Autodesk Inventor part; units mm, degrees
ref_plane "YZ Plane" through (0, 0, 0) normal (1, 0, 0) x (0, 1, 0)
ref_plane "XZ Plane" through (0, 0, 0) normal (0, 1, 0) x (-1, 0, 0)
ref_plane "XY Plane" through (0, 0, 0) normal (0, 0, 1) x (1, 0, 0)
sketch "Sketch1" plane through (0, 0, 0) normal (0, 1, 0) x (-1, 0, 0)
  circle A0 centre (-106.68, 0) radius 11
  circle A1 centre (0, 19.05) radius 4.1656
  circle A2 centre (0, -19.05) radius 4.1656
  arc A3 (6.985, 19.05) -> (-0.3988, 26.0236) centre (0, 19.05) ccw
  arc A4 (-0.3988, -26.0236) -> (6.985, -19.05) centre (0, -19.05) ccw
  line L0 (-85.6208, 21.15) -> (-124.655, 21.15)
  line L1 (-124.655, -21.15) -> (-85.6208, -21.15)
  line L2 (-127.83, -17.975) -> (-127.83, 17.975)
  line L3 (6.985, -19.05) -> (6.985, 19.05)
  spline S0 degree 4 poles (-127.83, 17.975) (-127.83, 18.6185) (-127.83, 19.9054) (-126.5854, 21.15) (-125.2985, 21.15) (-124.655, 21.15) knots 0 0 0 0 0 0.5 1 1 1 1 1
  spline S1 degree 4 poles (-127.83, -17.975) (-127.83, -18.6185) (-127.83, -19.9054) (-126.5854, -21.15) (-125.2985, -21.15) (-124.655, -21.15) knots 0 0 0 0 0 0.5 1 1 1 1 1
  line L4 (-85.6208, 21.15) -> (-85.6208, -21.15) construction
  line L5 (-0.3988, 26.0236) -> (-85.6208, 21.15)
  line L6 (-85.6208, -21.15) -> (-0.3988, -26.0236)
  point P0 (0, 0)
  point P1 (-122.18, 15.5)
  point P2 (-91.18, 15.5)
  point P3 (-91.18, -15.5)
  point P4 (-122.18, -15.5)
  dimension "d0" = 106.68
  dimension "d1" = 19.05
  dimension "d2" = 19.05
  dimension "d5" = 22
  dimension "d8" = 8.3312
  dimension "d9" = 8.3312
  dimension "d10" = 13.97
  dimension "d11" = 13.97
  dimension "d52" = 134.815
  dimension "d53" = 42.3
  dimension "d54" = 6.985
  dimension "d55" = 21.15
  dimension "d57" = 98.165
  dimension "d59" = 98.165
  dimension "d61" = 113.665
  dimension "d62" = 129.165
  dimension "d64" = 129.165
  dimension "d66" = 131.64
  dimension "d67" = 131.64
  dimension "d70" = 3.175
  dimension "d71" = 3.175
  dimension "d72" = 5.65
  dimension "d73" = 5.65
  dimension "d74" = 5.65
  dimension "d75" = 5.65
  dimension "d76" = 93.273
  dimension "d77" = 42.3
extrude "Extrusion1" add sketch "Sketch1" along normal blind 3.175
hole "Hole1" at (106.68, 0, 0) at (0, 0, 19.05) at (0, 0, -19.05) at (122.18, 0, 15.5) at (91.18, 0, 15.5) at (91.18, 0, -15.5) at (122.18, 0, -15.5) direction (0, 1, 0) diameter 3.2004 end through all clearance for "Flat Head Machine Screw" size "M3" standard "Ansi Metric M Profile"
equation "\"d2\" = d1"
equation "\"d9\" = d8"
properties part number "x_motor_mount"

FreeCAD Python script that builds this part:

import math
import FreeCAD as App
import Part
import Sketcher
from FreeCAD import Vector
Q = App.Units.Quantity

doc = App.newDocument("Part")
body = doc.addObject("PartDesign::Body", "Body")

sketch1 = doc.addObject("Sketcher::SketchObject", "Sketch")
body.addObject(sketch1)
sketch1.AttachmentSupport = (doc.XZ_Plane, [""])
sketch1.MapMode = "FlatFace"
sketch1.addGeometry(Part.LineSegment(Vector(-6.985, -19.05, 0), Vector(-6.985, 19.05, 0)), False)
sketch1.addGeometry(Part.ArcOfCircle(Part.Circle(Vector(0, 19.05, 0), Vector(0, 0, 1), 6.985), math.radians(86.726985), math.radians(180)), False)
sketch1.addGeometry(Part.LineSegment(Vector(0.3988, 26.0236, 0), Vector(85.6208, 21.15, 0)), False)
sketch1.addGeometry(Part.LineSegment(Vector(85.6208, 21.15, 0), Vector(124.655, 21.15, 0)), False)
sketch1.addGeometry(Part.BSplineCurve([Vector(127.83, 17.975, 0), Vector(127.83, 18.6185, 0), Vector(127.83, 19.9054, 0), Vector(126.5854, 21.15, 0), Vector(125.2985, 21.15, 0), Vector(124.655, 21.15, 0)], [5, 1, 5], [0, 0.5, 1], False, 4, [1, 1, 1, 1, 1, 1], False), False)
sketch1.addGeometry(Part.LineSegment(Vector(127.83, 17.975, 0), Vector(127.83, -17.975, 0)), False)
sketch1.addGeometry(Part.BSplineCurve([Vector(127.83, -17.975, 0), Vector(127.83, -18.6185, 0), Vector(127.83, -19.9054, 0), Vector(126.5854, -21.15, 0), Vector(125.2985, -21.15, 0), Vector(124.655, -21.15, 0)], [5, 1, 5], [0, 0.5, 1], False, 4, [1, 1, 1, 1, 1, 1], False), False)
sketch1.addGeometry(Part.LineSegment(Vector(124.655, -21.15, 0), Vector(85.6208, -21.15, 0)), False)
sketch1.addGeometry(Part.LineSegment(Vector(85.6208, -21.15, 0), Vector(0.3988, -26.0236, 0)), False)
sketch1.addGeometry(Part.ArcOfCircle(Part.Circle(Vector(0, -19.05, 0), Vector(0, 0, 1), 6.984994), math.radians(180), math.radians(273.273015)), False)
sketch1.addGeometry(Part.Circle(Vector(106.68, 0, 0), Vector(0, 0, 1), 11), False)
sketch1.addGeometry(Part.Circle(Vector(0, -19.05, 0), Vector(0, 0, 1), 4.1656), False)
sketch1.addGeometry(Part.Circle(Vector(0, 19.05, 0), Vector(0, 0, 1), 4.1656), False)
sketch1.addConstraint(Sketcher.Constraint("Block", 4))
sketch1.addConstraint(Sketcher.Constraint("Block", 6))
sketch1.addConstraint(Sketcher.Constraint("Tangent", 0, 2, 1, 2))
sketch1.addConstraint(Sketcher.Constraint("Tangent", 1, 1, 2, 1))
sketch1.addConstraint(Sketcher.Constraint("Coincident", 2, 2, 3, 1))
sketch1.addConstraint(Sketcher.Constraint("Coincident", 3, 2, 4, 2))
sketch1.addConstraint(Sketcher.Constraint("Coincident", 4, 1, 5, 1))
sketch1.addConstraint(Sketcher.Constraint("Coincident", 5, 2, 6, 1))
sketch1.addConstraint(Sketcher.Constraint("Coincident", 6, 2, 7, 1))
sketch1.addConstraint(Sketcher.Constraint("Coincident", 7, 2, 8, 1))
sketch1.addConstraint(Sketcher.Constraint("Tangent", 8, 2, 9, 2))
sketch1.addConstraint(Sketcher.Constraint("Tangent", 9, 1, 0, 1))
sketch1.addConstraint(Sketcher.Constraint("Vertical", 0))
sketch1.addConstraint(Sketcher.Constraint("Horizontal", 3))
sketch1.addConstraint(Sketcher.Constraint("Horizontal", 7))
sketch1.addConstraint(Sketcher.Constraint("Coincident", 11, 3, 9, 3))
sketch1.addConstraint(Sketcher.Constraint("Coincident", 12, 3, 1, 3))
sketch1.addConstraint(Sketcher.Constraint("Equal", 1, 9))
sketch1.addConstraint(Sketcher.Constraint("Equal", 11, 12))
sketch1.addConstraint(Sketcher.Constraint("Symmetric", 1, 3, 9, 3, -1, 1))
sketch1.addConstraint(Sketcher.Constraint("PointOnObject", 10, 3, -1))
sketch1.addConstraint(Sketcher.Constraint("Vertical", 2, 2, 7, 2))
sketch1.addConstraint(Sketcher.Constraint("Diameter", 11, Q("0.328 in")))
sketch1.addConstraint(Sketcher.Constraint("Radius", 1, Q("0.275 in")))
sketch1.addConstraint(Sketcher.Constraint("DistanceX", -1, 1, 10, 3, Q("4.2 in")))
sketch1.addConstraint(Sketcher.Constraint("Diameter", 10, 22.0))
sketch1.addConstraint(Sketcher.Constraint("DistanceY", -1, 1, 1, 3, Q("0.75 in")))
sketch1.addConstraint(Sketcher.Constraint("DistanceX", 3, 1, 3, 2, 39.0342))
pad1 = doc.addObject("PartDesign::Pad", "Pad")
body.addObject(pad1)
pad1.Profile = sketch1
pad1.Length = Q("0.125 in")
pad1.Reversed = True

sketch2 = doc.addObject("Sketcher::SketchObject", "Sketch001")
body.addObject(sketch2)
sketch2.AttachmentSupport = (doc.XZ_Plane, [""])
sketch2.MapMode = "FlatFace"
sketch2.addGeometry(Part.Circle(Vector(106.7, 0, 0), Vector(0, 0, 1), 1.6), False)
sketch2.addGeometry(Part.Circle(Vector(0, 19.1, 0), Vector(0, 0, 1), 1.6), False)
sketch2.addGeometry(Part.Circle(Vector(0, -19.1, 0), Vector(0, 0, 1), 1.6), False)
sketch2.addGeometry(Part.Circle(Vector(122.2, 15.5, 0), Vector(0, 0, 1), 1.6), False)
sketch2.addGeometry(Part.Circle(Vector(91.2, 15.5, 0), Vector(0, 0, 1), 1.6), False)
sketch2.addGeometry(Part.Circle(Vector(91.2, -15.5, 0), Vector(0, 0, 1), 1.6), False)
sketch2.addGeometry(Part.Circle(Vector(122.2, -15.5, 0), Vector(0, 0, 1), 1.6), False)
sketch2.addConstraint(Sketcher.Constraint("Equal", 0, 1))
sketch2.addConstraint(Sketcher.Constraint("Equal", 1, 2))
sketch2.addConstraint(Sketcher.Constraint("Equal", 2, 3))
sketch2.addConstraint(Sketcher.Constraint("Equal", 3, 4))
sketch2.addConstraint(Sketcher.Constraint("Equal", 4, 5))
sketch2.addConstraint(Sketcher.Constraint("Equal", 5, 6))
sketch2.addConstraint(Sketcher.Constraint("Symmetric", 1, 3, 2, 3, -1, 1))
sketch2.addConstraint(Sketcher.Constraint("Symmetric", 4, 3, 5, 3, -1))
sketch2.addConstraint(Sketcher.Constraint("Symmetric", 3, 3, 6, 3, -1))
sketch2.addConstraint(Sketcher.Constraint("PointOnObject", 0, 3, -1))
sketch2.addConstraint(Sketcher.Constraint("PointOnObject", 1, 3, -2))
sketch2.addConstraint(Sketcher.Constraint("Horizontal", 3, 3, 4, 3))
sketch2.addConstraint(Sketcher.Constraint("Diameter", 0, Q("0.126 in")))
sketch2.addConstraint(Sketcher.Constraint("DistanceX", -1, 1, 0, 3, Q("4.2 in")))
sketch2.addConstraint(Sketcher.Constraint("DistanceY", 2, 3, 1, 3, Q("1.5 in")))
sketch2.addConstraint(Sketcher.Constraint("DistanceX", -1, 1, 3, 3, 122.18))
sketch2.addConstraint(Sketcher.Constraint("DistanceY", -1, 1, 3, 3, 15.5))
sketch2.addConstraint(Sketcher.Constraint("DistanceX", -1, 1, 4, 3, 91.18))
doc.recompute()
hole = doc.addObject("PartDesign::Hole", "Hole")
body.addObject(hole)
hole.Profile = sketch2
hole.ThreadType = "None"
hole.Diameter = Q("0.126 in")
hole.DepthType = "ThroughAll"

doc.recompute()
